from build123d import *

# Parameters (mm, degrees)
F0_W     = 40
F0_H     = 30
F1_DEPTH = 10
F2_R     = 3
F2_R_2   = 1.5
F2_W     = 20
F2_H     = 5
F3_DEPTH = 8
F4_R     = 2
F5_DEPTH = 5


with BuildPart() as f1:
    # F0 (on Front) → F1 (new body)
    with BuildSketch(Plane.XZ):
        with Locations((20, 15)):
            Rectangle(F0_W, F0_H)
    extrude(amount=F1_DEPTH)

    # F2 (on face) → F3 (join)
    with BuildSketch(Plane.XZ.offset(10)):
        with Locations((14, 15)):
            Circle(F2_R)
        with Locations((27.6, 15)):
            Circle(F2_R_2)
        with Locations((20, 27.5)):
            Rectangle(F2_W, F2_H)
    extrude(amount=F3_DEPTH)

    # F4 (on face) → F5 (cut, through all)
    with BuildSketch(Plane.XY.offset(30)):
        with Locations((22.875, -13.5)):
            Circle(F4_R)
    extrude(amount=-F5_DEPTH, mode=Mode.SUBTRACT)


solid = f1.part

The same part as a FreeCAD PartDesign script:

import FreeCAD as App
import Part
import Sketcher

doc = App.newDocument("Part")
params = doc.addObject("Spreadsheet::Sheet", "Params")
for row, (alias, value) in enumerate([
    ("sketch1_width", "40 mm"),
    ("sketch1_height", "30 mm"),
    ("pad1_length", "10 mm"),
    ("sketch2_diameter", "6 mm"),
    ("sketch2_diameter2", "3 mm"),
    ("sketch2_width", "20 mm"),
    ("sketch2_height", "5 mm"),
    ("pad2_length", "8 mm"),
    ("sketch3_diameter", "4 mm"),
], start=1):
    params.set(f"A{row}", alias)
    params.set(f"B{row}", "=" + value)
    params.setAlias(f"B{row}", alias)

body = doc.addObject("PartDesign::Body", "Body")

sketch1 = body.newObject("Sketcher::SketchObject", "Sketch")
sketch1.AttachmentSupport = (doc.getObject("XZ_Plane"), [""])
sketch1.MapMode = "FlatFace"
sketch1.addGeometry(Part.LineSegment(App.Vector(0, 30, 0), App.Vector(0, 0, 0)), False)
sketch1.addGeometry(Part.LineSegment(App.Vector(0, 0, 0), App.Vector(40, 0, 0)), False)
sketch1.addGeometry(Part.LineSegment(App.Vector(40, 0, 0), App.Vector(40, 30, 0)), False)
sketch1.addGeometry(Part.LineSegment(App.Vector(40, 30, 0), App.Vector(0, 30, 0)), False)
sketch1.addConstraint(Sketcher.Constraint("Coincident", 0, 2, 1, 1))
sketch1.addConstraint(Sketcher.Constraint("Coincident", 1, 2, 2, 1))
sketch1.addConstraint(Sketcher.Constraint("Coincident", 2, 2, 3, 1))
sketch1.addConstraint(Sketcher.Constraint("Coincident", 3, 2, 0, 1))
sketch1.addConstraint(Sketcher.Constraint("Vertical", 0))
sketch1.addConstraint(Sketcher.Constraint("Horizontal", 1))
sketch1.addConstraint(Sketcher.Constraint("Vertical", 2))
sketch1.addConstraint(Sketcher.Constraint("Horizontal", 3))
sketch1.addConstraint(Sketcher.Constraint("Coincident", 0, 2, -1, 1))
sketch1.addConstraint(Sketcher.Constraint("DistanceX", 1, 1, 1, 2, 40.0))
sketch1.addConstraint(Sketcher.Constraint("DistanceY", 0, 2, 0, 1, 30.0))
sketch1.setExpression("Constraints[9]", "Params.sketch1_width")
sketch1.setExpression("Constraints[10]", "Params.sketch1_height")
pad1 = body.newObject("PartDesign::Pad", "Pad")
pad1.Profile = sketch1
pad1.setExpression("Length", "Params.pad1_length")

sketch2 = body.newObject("Sketcher::SketchObject", "Sketch001")
sketch2.AttachmentSupport = (doc.getObject("XZ_Plane"), [""])
sketch2.MapMode = "FlatFace"
sketch2.AttachmentOffset = App.Placement(App.Vector(0, 0, 10), App.Rotation())
sketch2.addGeometry(Part.Circle(App.Vector(14, 15, 0), App.Vector(0, 0, 1), 3), False)
sketch2.addGeometry(Part.Circle(App.Vector(27.6, 15, 0), App.Vector(0, 0, 1), 1.5), False)
sketch2.addGeometry(Part.LineSegment(App.Vector(10, 30, 0), App.Vector(10, 25, 0)), False)
sketch2.addGeometry(Part.LineSegment(App.Vector(10, 25, 0), App.Vector(30, 25, 0)), False)
sketch2.addGeometry(Part.LineSegment(App.Vector(30, 25, 0), App.Vector(30, 30, 0)), False)
sketch2.addGeometry(Part.LineSegment(App.Vector(30, 30, 0), App.Vector(10, 30, 0)), False)
sketch2.addConstraint(Sketcher.Constraint("Coincident", 2, 2, 3, 1))
sketch2.addConstraint(Sketcher.Constraint("Coincident", 3, 2, 4, 1))
sketch2.addConstraint(Sketcher.Constraint("Coincident", 4, 2, 5, 1))
sketch2.addConstraint(Sketcher.Constraint("Coincident", 5, 2, 2, 1))
sketch2.addConstraint(Sketcher.Constraint("Vertical", 2))
sketch2.addConstraint(Sketcher.Constraint("Horizontal", 3))
sketch2.addConstraint(Sketcher.Constraint("Vertical", 4))
sketch2.addConstraint(Sketcher.Constraint("Horizontal", 5))
sketch2.addConstraint(Sketcher.Constraint("Horizontal", 0, 3, 1, 3))
sketch2.addConstraint(Sketcher.Constraint("Diameter", 0, 6.0))
sketch2.addConstraint(Sketcher.Constraint("Diameter", 1, 3.0))
sketch2.addConstraint(Sketcher.Constraint("DistanceX", 3, 1, 3, 2, 20.0))
sketch2.addConstraint(Sketcher.Constraint("DistanceY", 2, 2, 2, 1, 5.0))
sketch2.addConstraint(Sketcher.Constraint("DistanceX", -1, 1, 0, 3, 14.0))
sketch2.addConstraint(Sketcher.Constraint("DistanceY", -1, 1, 0, 3, 15.0))
sketch2.addConstraint(Sketcher.Constraint("DistanceX", -1, 1, 2, 2, 10.0))
sketch2.addConstraint(Sketcher.Constraint("DistanceY", -1, 1, 2, 2, 25.0))
sketch2.addConstraint(Sketcher.Constraint("DistanceX", -1, 1, 1, 3, 27.6))
sketch2.setExpression("Constraints[9]", "Params.sketch2_diameter")
sketch2.setExpression("Constraints[10]", "Params.sketch2_diameter2")
sketch2.setExpression("Constraints[11]", "Params.sketch2_width")
sketch2.setExpression("Constraints[12]", "Params.sketch2_height")
pad2 = body.newObject("PartDesign::Pad", "Pad001")
pad2.Profile = sketch2
pad2.setExpression("Length", "Params.pad2_length")

sketch3 = body.newObject("Sketcher::SketchObject", "Sketch002")
sketch3.AttachmentSupport = (doc.getObject("XY_Plane"), [""])
sketch3.MapMode = "FlatFace"
sketch3.AttachmentOffset = App.Placement(App.Vector(0, 0, 30), App.Rotation())
sketch3.addGeometry(Part.Circle(App.Vector(22.875, -13.5, 0), App.Vector(0, 0, 1), 2), False)
sketch3.addConstraint(Sketcher.Constraint("Diameter", 0, 4.0))
sketch3.addConstraint(Sketcher.Constraint("DistanceY", 0, 3, -1, 1, 13.5))
sketch3.addConstraint(Sketcher.Constraint("DistanceX", -1, 1, 0, 3, 22.875))
sketch3.setExpression("Constraints[0]", "Params.sketch3_diameter")
pocket1 = body.newObject("PartDesign::Pocket", "Pocket")
pocket1.Profile = sketch3
pocket1.Type = "ThroughAll"

doc.recompute()
